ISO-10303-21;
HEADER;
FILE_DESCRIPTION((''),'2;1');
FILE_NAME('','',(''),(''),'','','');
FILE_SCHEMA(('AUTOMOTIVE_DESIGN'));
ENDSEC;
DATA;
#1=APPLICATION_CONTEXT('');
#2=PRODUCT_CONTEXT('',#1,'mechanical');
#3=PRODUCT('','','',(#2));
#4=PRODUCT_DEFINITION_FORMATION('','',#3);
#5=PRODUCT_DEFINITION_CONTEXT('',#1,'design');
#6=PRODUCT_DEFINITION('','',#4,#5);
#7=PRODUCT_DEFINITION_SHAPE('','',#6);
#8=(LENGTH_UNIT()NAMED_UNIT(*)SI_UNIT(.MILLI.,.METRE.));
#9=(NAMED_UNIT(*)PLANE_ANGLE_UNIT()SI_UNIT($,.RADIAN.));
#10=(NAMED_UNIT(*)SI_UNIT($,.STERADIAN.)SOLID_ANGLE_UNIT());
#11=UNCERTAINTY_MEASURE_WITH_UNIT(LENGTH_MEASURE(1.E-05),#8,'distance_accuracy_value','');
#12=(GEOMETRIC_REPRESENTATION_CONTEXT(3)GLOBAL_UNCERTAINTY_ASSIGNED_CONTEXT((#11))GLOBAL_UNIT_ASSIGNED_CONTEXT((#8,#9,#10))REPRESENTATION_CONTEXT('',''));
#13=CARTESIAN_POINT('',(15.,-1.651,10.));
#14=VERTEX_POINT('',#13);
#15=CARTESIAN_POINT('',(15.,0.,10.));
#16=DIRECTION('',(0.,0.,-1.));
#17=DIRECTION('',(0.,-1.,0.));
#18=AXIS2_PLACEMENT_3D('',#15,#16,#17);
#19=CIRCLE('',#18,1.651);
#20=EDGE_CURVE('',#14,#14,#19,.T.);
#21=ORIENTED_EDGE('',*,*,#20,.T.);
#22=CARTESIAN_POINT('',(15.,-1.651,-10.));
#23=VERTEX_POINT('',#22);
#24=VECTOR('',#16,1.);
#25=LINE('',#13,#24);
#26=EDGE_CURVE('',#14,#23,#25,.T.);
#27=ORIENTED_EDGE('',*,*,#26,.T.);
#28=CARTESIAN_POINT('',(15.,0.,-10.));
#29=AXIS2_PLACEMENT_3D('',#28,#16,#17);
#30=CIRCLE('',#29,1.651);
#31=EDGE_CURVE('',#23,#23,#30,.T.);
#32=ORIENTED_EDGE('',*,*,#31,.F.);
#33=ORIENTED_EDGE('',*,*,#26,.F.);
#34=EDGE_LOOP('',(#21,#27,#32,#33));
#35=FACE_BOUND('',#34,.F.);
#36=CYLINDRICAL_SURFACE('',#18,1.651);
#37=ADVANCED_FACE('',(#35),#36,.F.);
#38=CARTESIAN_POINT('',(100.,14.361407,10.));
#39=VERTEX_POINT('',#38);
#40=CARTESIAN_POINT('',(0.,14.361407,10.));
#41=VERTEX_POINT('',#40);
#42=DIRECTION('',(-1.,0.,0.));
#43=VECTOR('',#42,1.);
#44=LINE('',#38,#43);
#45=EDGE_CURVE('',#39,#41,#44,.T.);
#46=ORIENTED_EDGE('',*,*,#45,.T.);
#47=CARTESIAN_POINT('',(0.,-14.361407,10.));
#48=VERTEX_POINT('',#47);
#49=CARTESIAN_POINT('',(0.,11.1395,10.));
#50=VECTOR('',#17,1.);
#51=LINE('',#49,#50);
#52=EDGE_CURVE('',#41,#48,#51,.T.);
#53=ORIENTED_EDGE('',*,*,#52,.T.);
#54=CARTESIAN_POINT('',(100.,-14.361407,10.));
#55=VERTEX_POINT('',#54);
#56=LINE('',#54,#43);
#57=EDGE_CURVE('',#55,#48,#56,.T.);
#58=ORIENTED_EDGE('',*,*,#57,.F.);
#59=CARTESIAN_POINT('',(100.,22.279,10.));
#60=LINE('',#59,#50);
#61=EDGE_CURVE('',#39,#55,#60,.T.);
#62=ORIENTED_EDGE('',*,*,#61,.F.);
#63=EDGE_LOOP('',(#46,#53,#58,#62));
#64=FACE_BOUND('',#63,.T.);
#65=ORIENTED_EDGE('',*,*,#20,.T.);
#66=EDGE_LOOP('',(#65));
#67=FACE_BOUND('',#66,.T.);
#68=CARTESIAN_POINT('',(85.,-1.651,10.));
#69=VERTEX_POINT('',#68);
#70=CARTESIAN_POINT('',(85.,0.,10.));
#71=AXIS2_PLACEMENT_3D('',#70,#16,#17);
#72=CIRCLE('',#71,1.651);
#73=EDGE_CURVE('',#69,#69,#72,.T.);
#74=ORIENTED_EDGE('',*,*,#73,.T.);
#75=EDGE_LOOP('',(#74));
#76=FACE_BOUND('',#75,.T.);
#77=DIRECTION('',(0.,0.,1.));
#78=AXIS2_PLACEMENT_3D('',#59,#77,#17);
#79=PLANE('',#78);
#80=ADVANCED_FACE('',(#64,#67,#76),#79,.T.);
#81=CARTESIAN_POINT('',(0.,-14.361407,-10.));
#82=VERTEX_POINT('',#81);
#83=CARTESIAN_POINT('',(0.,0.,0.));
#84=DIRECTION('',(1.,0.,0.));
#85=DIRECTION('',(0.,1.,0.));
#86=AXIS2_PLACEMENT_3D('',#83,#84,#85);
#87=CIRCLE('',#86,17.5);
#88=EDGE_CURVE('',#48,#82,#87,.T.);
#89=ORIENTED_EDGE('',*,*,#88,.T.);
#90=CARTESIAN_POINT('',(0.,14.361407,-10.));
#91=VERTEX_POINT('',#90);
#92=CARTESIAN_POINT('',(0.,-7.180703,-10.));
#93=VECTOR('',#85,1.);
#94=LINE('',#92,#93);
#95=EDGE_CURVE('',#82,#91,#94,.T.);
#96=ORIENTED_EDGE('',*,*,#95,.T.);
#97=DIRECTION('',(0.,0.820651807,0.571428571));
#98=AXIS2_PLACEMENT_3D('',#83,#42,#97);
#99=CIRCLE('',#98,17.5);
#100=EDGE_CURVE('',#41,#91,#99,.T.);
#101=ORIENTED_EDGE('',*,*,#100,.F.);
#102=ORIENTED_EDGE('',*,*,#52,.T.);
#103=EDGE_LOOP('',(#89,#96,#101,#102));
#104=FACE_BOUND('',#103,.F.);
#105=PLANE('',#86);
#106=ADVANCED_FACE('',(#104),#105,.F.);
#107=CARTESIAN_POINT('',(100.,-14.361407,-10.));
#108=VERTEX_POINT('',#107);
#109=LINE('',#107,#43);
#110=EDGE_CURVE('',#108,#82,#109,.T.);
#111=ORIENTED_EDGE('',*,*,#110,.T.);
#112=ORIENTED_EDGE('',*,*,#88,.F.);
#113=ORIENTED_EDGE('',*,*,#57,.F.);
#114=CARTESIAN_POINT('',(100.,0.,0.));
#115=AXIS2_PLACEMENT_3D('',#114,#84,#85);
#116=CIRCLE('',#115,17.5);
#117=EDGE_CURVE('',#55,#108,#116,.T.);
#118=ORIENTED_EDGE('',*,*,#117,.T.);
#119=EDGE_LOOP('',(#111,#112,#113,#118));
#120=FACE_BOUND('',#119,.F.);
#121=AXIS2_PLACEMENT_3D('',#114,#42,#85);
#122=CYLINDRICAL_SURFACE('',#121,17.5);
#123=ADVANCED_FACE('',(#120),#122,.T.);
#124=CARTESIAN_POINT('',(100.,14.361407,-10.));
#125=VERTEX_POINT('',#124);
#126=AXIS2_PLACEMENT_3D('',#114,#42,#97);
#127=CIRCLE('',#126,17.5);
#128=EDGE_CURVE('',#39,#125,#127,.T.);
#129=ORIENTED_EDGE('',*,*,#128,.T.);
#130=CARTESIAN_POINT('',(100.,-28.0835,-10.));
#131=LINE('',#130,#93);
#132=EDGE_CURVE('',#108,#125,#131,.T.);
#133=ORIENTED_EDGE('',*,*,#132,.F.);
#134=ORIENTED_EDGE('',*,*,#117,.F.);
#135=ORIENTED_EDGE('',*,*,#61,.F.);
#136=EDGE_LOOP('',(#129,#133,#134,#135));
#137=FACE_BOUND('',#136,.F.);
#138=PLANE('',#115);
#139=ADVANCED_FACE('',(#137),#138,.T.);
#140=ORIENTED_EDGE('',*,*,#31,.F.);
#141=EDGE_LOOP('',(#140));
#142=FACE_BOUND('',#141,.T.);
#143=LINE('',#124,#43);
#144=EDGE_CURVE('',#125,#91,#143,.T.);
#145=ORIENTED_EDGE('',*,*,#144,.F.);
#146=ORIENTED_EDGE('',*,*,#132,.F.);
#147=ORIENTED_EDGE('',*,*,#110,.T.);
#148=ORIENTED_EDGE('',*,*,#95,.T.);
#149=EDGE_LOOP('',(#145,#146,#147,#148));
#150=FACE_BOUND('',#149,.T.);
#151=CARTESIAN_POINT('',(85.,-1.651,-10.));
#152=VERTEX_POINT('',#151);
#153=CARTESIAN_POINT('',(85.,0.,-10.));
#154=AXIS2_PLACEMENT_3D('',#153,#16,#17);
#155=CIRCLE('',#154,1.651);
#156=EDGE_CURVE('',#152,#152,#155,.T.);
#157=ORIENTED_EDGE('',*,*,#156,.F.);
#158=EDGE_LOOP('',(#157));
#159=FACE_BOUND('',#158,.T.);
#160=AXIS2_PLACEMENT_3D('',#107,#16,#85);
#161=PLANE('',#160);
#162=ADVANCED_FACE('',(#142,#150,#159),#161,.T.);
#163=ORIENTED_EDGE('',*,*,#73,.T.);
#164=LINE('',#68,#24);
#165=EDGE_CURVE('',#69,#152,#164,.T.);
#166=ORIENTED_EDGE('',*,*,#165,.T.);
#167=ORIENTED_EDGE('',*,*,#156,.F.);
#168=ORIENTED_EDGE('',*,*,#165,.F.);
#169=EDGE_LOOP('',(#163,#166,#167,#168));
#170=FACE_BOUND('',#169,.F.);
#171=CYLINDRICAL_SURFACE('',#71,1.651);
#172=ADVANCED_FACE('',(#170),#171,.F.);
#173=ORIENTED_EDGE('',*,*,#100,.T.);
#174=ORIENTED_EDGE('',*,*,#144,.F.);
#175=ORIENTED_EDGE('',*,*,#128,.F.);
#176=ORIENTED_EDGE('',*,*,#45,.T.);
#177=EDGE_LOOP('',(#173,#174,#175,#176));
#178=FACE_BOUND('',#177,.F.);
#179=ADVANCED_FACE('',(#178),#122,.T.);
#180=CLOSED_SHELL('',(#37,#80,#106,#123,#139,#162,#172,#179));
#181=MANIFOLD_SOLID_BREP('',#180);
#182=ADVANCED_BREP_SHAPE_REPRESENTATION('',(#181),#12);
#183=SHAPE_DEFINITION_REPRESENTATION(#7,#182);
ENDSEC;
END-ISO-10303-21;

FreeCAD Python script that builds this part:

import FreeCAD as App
import Part
import Sketcher
from FreeCAD import Vector
Q = App.Units.Quantity

doc = App.newDocument("Part")
body = doc.addObject("PartDesign::Body", "Body")

# Sketch on XY plane
sketch1 = body.newObject("Sketcher::SketchObject", "Sketch")
sketch1.AttachmentSupport = (doc.getObject("XY_Plane"), [""])
sketch1.MapMode = "FlatFace"
sketch1.addGeometry(Part.LineSegment(Vector(0, 18, 0), Vector(0, 0, 0)), False)
sketch1.addGeometry(Part.LineSegment(Vector(0, 0, 0), Vector(100, 0, 0)), False)
sketch1.addGeometry(Part.LineSegment(Vector(100, 0, 0), Vector(100, 18, 0)), False)
sketch1.addGeometry(Part.LineSegment(Vector(100, 18, 0), Vector(0, 18, 0)), False)
sketch1.addConstraint(Sketcher.Constraint("Coincident", 0, 2, 1, 1))
sketch1.addConstraint(Sketcher.Constraint("Coincident", 1, 2, 2, 1))
sketch1.addConstraint(Sketcher.Constraint("Coincident", 2, 2, 3, 1))
sketch1.addConstraint(Sketcher.Constraint("Coincident", 3, 2, 0, 1))
sketch1.addConstraint(Sketcher.Constraint("Vertical", 0))
sketch1.addConstraint(Sketcher.Constraint("Horizontal", 1))
sketch1.addConstraint(Sketcher.Constraint("Vertical", 2))
sketch1.addConstraint(Sketcher.Constraint("Horizontal", 3))
sketch1.addConstraint(Sketcher.Constraint("Coincident", 0, 2, -1, 1))
sketch1.addConstraint(Sketcher.Constraint("DistanceX", 1, 1, 1, 2, Q("100 mm")))
sketch1.addConstraint(Sketcher.Constraint("DistanceY", 0, 2, 0, 1, Q("17.5 mm")))
revolution = body.newObject("PartDesign::Revolution", "Revolution")
revolution.Profile = sketch1
revolution.ReferenceAxis = (sketch1, ["H_Axis"])
revolution.Angle = 360

# Sketch on YZ plane
sketch2 = body.newObject("Sketcher::SketchObject", "Sketch001")
sketch2.AttachmentSupport = (doc.getObject("YZ_Plane"), [""])
sketch2.MapMode = "FlatFace"
sketch2.AttachmentOffset = App.Placement(Vector(0, 0, 100), App.Rotation())
sketch2.addGeometry(Part.LineSegment(Vector(22, 10, 0), Vector(22, 23, 0)), False)
sketch2.addGeometry(Part.LineSegment(Vector(22, 23, 0), Vector(-22, 23, 0)), False)
sketch2.addGeometry(Part.LineSegment(Vector(-22, 23, 0), Vector(-22, 10, 0)), False)
sketch2.addGeometry(Part.LineSegment(Vector(-22, 10, 0), Vector(22, 10, 0)), False)
sketch2.addGeometry(Part.LineSegment(Vector(-28, -10, 0), Vector(-28, -22, 0)), False)
sketch2.addGeometry(Part.LineSegment(Vector(-28, -22, 0), Vector(22, -22, 0)), False)
sketch2.addGeometry(Part.LineSegment(Vector(22, -22, 0), Vector(22, -10, 0)), False)
sketch2.addGeometry(Part.LineSegment(Vector(22, -10, 0), Vector(-28, -10, 0)), False)
sketch2.addConstraint(Sketcher.Constraint("Coincident", 0, 2, 1, 1))
sketch2.addConstraint(Sketcher.Constraint("Coincident", 1, 2, 2, 1))
sketch2.addConstraint(Sketcher.Constraint("Coincident", 2, 2, 3, 1))
sketch2.addConstraint(Sketcher.Constraint("Coincident", 3, 2, 0, 1))
sketch2.addConstraint(Sketcher.Constraint("Coincident", 4, 2, 5, 1))
sketch2.addConstraint(Sketcher.Constraint("Coincident", 5, 2, 6, 1))
sketch2.addConstraint(Sketcher.Constraint("Coincident", 6, 2, 7, 1))
sketch2.addConstraint(Sketcher.Constraint("Coincident", 7, 2, 4, 1))
sketch2.addConstraint(Sketcher.Constraint("Vertical", 0))
sketch2.addConstraint(Sketcher.Constraint("Horizontal", 1))
sketch2.addConstraint(Sketcher.Constraint("Vertical", 2))
sketch2.addConstraint(Sketcher.Constraint("Horizontal", 3))
sketch2.addConstraint(Sketcher.Constraint("Vertical", 4))
sketch2.addConstraint(Sketcher.Constraint("Horizontal", 5))
sketch2.addConstraint(Sketcher.Constraint("Vertical", 6))
sketch2.addConstraint(Sketcher.Constraint("Horizontal", 7))
sketch2.addConstraint(Sketcher.Constraint("Symmetric", 2, 2, 6, 2, -1, 1))
sketch2.addConstraint(Sketcher.Constraint("Vertical", 3, 2, 5, 2))
sketch2.addConstraint(Sketcher.Constraint("DistanceY", -1, 1, 2, 2, Q("10 mm")))
sketch2.addConstraint(Sketcher.Constraint("DistanceX", 1, 2, 1, 1, Q("44.558 mm")))
sketch2.addConstraint(Sketcher.Constraint("DistanceY", 4, 2, 4, 1, Q("12.168 mm")))
sketch2.addConstraint(Sketcher.Constraint("DistanceX", 5, 1, 5, 2, Q("50.3625 mm")))
sketch2.addConstraint(Sketcher.Constraint("DistanceY", 0, 1, 0, 2, Q("12.6333 mm")))
pocket1 = body.newObject("PartDesign::Pocket", "Pocket")
pocket1.Profile = sketch2
pocket1.Type = "ThroughAll"

# Sketch on XY plane
sketch3 = body.newObject("Sketcher::SketchObject", "Sketch002")
sketch3.AttachmentSupport = (doc.getObject("XY_Plane"), [""])
sketch3.MapMode = "FlatFace"
sketch3.AttachmentOffset = App.Placement(Vector(0, 0, 10), App.Rotation())
sketch3.addGeometry(Part.Circle(Vector(15, 0, 0), Vector(0, 0, 1), 1.7), False)
sketch3.addGeometry(Part.Circle(Vector(85, 0, 0), Vector(0, 0, 1), 1.7), False)
sketch3.addConstraint(Sketcher.Constraint("Equal", 0, 1))
sketch3.addConstraint(Sketcher.Constraint("PointOnObject", 0, 3, -1))
sketch3.addConstraint(Sketcher.Constraint("PointOnObject", 1, 3, -1))
sketch3.addConstraint(Sketcher.Constraint("Diameter", 0, Q("3.302 mm")))
sketch3.addConstraint(Sketcher.Constraint("DistanceX", -1, 1, 0, 3, Q("15 mm")))
sketch3.addConstraint(Sketcher.Constraint("DistanceX", -1, 1, 1, 3, Q("85 mm")))
doc.recompute()
hole = body.newObject("PartDesign::Hole", "Hole")
hole.Profile = sketch3
hole.ThreadType = "None"
hole.Diameter = 3.302
hole.DepthType = "ThroughAll"

doc.recompute()
